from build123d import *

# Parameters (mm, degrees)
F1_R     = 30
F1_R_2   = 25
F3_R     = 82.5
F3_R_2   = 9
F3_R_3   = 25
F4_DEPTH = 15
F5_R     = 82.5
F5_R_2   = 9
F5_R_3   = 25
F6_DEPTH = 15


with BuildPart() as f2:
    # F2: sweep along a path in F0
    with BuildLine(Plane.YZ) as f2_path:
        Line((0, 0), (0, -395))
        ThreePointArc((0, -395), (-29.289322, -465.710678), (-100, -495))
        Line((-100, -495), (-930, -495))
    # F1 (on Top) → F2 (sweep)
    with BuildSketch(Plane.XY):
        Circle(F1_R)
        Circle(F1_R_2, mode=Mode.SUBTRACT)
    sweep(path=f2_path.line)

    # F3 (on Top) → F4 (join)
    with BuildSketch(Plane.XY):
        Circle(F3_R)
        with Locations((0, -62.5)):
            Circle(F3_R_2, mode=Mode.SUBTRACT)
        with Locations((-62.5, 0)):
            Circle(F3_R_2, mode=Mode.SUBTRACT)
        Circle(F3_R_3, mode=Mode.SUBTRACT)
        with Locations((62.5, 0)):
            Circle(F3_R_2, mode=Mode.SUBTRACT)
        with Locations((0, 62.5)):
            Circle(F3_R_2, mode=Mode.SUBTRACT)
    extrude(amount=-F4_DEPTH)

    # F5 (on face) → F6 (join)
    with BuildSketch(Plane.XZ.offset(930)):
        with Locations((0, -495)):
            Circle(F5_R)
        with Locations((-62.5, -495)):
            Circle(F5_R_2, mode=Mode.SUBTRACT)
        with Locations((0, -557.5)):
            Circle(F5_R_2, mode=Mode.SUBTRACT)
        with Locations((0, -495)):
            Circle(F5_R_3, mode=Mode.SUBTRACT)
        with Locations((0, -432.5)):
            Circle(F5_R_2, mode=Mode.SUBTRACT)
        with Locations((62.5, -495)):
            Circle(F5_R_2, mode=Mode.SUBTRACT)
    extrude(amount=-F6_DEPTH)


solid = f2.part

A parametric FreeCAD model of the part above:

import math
import FreeCAD as App
import Part
import Sketcher

doc = App.newDocument("Part")
body = doc.addObject("PartDesign::Body", "Body")

# Sketch on XY plane
sketch1 = doc.addObject("Sketcher::SketchObject", "Sketch")
body.addObject(sketch1)
sketch1.AttachmentSupport = (doc.XY_Plane, [""])
sketch1.MapMode = "FlatFace"
sketch1.addGeometry([
    Part.Circle(App.Vector(0, 0, 0), App.Vector(0, 0, 1), 30),
    Part.Circle(App.Vector(0, 0, 0), App.Vector(0, 0, 1), 25),
], False)
sketch1.addConstraint([
    Sketcher.Constraint("Coincident", 0, 3, -1, 1),
    Sketcher.Constraint("Coincident", 1, 3, -1, 1),
    Sketcher.Constraint("Diameter", 0, 60.0),
    Sketcher.Constraint("Diameter", 1, 50.0),
])

# Sketch on YZ plane
sketch2 = doc.addObject("Sketcher::SketchObject", "Sketch001")
body.addObject(sketch2)
sketch2.AttachmentSupport = (doc.YZ_Plane, [""])
sketch2.MapMode = "FlatFace"
sketch2.addGeometry([
    Part.LineSegment(App.Vector(0, 0, 0), App.Vector(0, -395, 0)),
    Part.ArcOfCircle(Part.Circle(App.Vector(-100, -395, 0), App.Vector(0, 0, 1), 100), math.radians(-90), math.radians(0)),
    Part.LineSegment(App.Vector(-100, -495, 0), App.Vector(-930, -495, 0)),
], False)
sketch2.addConstraint([
    Sketcher.Constraint("Tangent", 0, 2, 1, 2),
    Sketcher.Constraint("Tangent", 1, 1, 2, 1),
    Sketcher.Constraint("Vertical", 0),
    Sketcher.Constraint("Horizontal", 2),
    Sketcher.Constraint("Coincident", 0, 1, -1, 1),
    Sketcher.Constraint("Radius", 1, 100.0),
    Sketcher.Constraint("DistanceX", 2, 2, 2, 1, 830.0),
    Sketcher.Constraint("DistanceY", 0, 2, 0, 1, 395.0),
])
doc.recompute()

additivepipe = doc.addObject("PartDesign::AdditivePipe", "AdditivePipe")
body.addObject(additivepipe)
additivepipe.Profile = sketch1
additivepipe.Spine = (sketch2, ["Edge1", "Edge2", "Edge3"])

# Sketch on XY plane
sketch3 = doc.addObject("Sketcher::SketchObject", "Sketch002")
body.addObject(sketch3)
sketch3.AttachmentSupport = (doc.XY_Plane, [""])
sketch3.MapMode = "FlatFace"
sketch3.addGeometry([
    Part.Circle(App.Vector(0, 0, 0), App.Vector(0, 0, 1), 82),  # 0
    Part.Circle(App.Vector(0, -62, 0), App.Vector(0, 0, 1), 9),  # 1
    Part.Circle(App.Vector(-62, 0, 0), App.Vector(0, 0, 1), 9),  # 2
    Part.Circle(App.Vector(0, 0, 0), App.Vector(0, 0, 1), 25),  # 3
    Part.Circle(App.Vector(62, 0, 0), App.Vector(0, 0, 1), 9),  # 4
    Part.Circle(App.Vector(0, 62, 0), App.Vector(0, 0, 1), 9),  # 5
], False)
sketch3.addConstraint([
    Sketcher.Constraint("Coincident", 0, 3, -1, 1),
    Sketcher.Constraint("Coincident", 3, 3, -1, 1),
    Sketcher.Constraint("Equal", 1, 2),
    Sketcher.Constraint("Equal", 2, 4),
    Sketcher.Constraint("Equal", 4, 5),
    Sketcher.Constraint("Symmetric", 2, 3, 4, 3, -1, 1),
    Sketcher.Constraint("Symmetric", 1, 3, 5, 3, -1, 1),
    Sketcher.Constraint("PointOnObject", 1, 3, -2),
    Sketcher.Constraint("PointOnObject", 2, 3, -1),
    Sketcher.Constraint("Diameter", 0, 165.0),
    Sketcher.Constraint("Diameter", 1, 18.0),
    Sketcher.Constraint("Diameter", 3, 50.0),
    Sketcher.Constraint("DistanceX", 2, 3, 4, 3, 125.0),
    Sketcher.Constraint("DistanceY", 1, 3, 5, 3, 125.0),
])
pad1 = doc.addObject("PartDesign::Pad", "Pad")
body.addObject(pad1)
pad1.Profile = sketch3
pad1.Length = 15
pad1.Reversed = True

# Sketch on XZ plane
sketch4 = doc.addObject("Sketcher::SketchObject", "Sketch003")
body.addObject(sketch4)
sketch4.AttachmentSupport = (doc.XZ_Plane, [""])
sketch4.MapMode = "FlatFace"
sketch4.AttachmentOffset = App.Placement(App.Vector(0, 0, 930), App.Rotation())
sketch4.addGeometry([
    Part.Circle(App.Vector(0, -495, 0), App.Vector(0, 0, 1), 82),  # 0
    Part.Circle(App.Vector(0, -558, 0), App.Vector(0, 0, 1), 9),  # 1
    Part.Circle(App.Vector(-62, -495, 0), App.Vector(0, 0, 1), 9),  # 2
    Part.Circle(App.Vector(0, -495, 0), App.Vector(0, 0, 1), 25),  # 3
    Part.Circle(App.Vector(62, -495, 0), App.Vector(0, 0, 1), 9),  # 4
    Part.Circle(App.Vector(0, -432, 0), App.Vector(0, 0, 1), 9),  # 5
], False)
sketch4.addConstraint([
    Sketcher.Constraint("Coincident", 3, 3, 0, 3),
    Sketcher.Constraint("Equal", 1, 2),
    Sketcher.Constraint("Equal", 2, 4),
    Sketcher.Constraint("Equal", 4, 5),
    Sketcher.Constraint("Symmetric", 2, 3, 4, 3, -2),
    Sketcher.Constraint("PointOnObject", 0, 3, -2),
    Sketcher.Constraint("PointOnObject", 1, 3, -2),
    Sketcher.Constraint("PointOnObject", 5, 3, -2),
    Sketcher.Constraint("Horizontal", 0, 3, 2, 3),
    Sketcher.Constraint("Diameter", 0, 165.0),
    Sketcher.Constraint("Diameter", 1, 18.0),
    Sketcher.Constraint("Diameter", 3, 50.0),
    Sketcher.Constraint("DistanceY", 0, 3, -1, 1, 495.0),
    Sketcher.Constraint("DistanceX", 2, 3, 4, 3, 125.0),
    Sketcher.Constraint("DistanceY", 1, 3, 5, 3, 125.0),
    Sketcher.Constraint("DistanceY", 1, 3, -1, 1, 557.5),
])
pad2 = doc.addObject("PartDesign::Pad", "Pad001")
body.addObject(pad2)
pad2.Profile = sketch4
pad2.Length = 15
pad2.Reversed = True

doc.recompute()
